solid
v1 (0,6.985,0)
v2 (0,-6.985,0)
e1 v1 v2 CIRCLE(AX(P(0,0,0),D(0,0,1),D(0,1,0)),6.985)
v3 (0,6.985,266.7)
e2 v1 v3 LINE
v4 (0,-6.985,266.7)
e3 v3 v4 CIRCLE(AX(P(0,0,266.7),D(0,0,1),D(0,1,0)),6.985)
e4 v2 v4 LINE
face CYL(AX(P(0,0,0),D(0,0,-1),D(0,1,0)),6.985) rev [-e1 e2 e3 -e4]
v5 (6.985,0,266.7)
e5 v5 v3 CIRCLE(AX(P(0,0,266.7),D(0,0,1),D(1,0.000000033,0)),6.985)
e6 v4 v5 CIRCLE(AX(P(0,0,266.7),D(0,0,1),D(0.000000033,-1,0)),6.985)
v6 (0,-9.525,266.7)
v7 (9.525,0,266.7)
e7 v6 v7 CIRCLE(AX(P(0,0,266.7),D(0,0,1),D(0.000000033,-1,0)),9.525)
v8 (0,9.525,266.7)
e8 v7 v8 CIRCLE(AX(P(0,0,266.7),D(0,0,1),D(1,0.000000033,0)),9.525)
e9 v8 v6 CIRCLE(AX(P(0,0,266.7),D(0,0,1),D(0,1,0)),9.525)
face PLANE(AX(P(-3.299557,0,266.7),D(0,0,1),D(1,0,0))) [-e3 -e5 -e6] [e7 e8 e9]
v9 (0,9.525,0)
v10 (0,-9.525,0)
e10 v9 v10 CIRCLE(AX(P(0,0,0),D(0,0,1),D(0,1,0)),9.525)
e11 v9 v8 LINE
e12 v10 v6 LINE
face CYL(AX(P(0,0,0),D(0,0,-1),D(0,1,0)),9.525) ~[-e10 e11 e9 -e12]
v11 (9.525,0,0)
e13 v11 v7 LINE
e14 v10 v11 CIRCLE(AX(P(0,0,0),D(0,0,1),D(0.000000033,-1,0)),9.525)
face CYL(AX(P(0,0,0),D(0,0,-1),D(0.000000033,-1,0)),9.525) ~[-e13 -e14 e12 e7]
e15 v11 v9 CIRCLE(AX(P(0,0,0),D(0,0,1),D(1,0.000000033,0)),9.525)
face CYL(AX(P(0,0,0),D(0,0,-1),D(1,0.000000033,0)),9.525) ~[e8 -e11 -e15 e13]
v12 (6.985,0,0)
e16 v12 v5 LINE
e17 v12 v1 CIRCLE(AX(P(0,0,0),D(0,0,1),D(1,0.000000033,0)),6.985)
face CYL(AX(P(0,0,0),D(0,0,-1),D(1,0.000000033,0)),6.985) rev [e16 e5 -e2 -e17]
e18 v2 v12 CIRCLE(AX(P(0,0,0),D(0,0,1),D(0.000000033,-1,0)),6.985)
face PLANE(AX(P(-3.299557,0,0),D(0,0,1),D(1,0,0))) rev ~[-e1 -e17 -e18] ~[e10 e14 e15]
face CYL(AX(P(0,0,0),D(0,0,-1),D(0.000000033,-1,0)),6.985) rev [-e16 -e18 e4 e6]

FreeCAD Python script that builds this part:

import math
import FreeCAD as App
import Part
import Sketcher
from FreeCAD import Vector
Q = App.Units.Quantity


def faces_at(feature, points):
    """Names of the faces that lie closest to the given points."""
    faces = feature.Shape.Faces
    near = lambda p: min(range(len(faces)), key=lambda i: faces[i].distToShape(Part.Vertex(*p))[0])
    return sorted({f"Face{near(p) + 1}" for p in points})

doc = App.newDocument("Part")
body = doc.addObject("PartDesign::Body", "Body")

# Sketch on XY plane
sketch1 = doc.addObject("Sketcher::SketchObject", "Sketch")
body.addObject(sketch1)
sketch1.AttachmentSupport = (doc.XY_Plane, [""])
sketch1.MapMode = "FlatFace"
sketch1.addGeometry([
    Part.ArcOfCircle(Part.Circle(Vector(0, 0, 0), Vector(0, 0, 1), 9.525), math.radians(90), math.radians(270)),
    Part.ArcOfCircle(Part.Circle(Vector(0, 0, 0), Vector(0, 0, 1), 9.525), math.radians(-89.999998), math.radians(-0.000002)),
    Part.ArcOfCircle(Part.Circle(Vector(0, 0, 0), Vector(0, 0, 1), 9.525), math.radians(0.000002), math.radians(89.999998)),
], False)
sketch1.addConstraint([
    Sketcher.Constraint("Tangent", 0, 2, 1, 1),
    Sketcher.Constraint("Tangent", 1, 2, 2, 1),
    Sketcher.Constraint("Tangent", 2, 2, 0, 1),
    Sketcher.Constraint("Coincident", 0, 3, -1, 1),
    Sketcher.Constraint("PointOnObject", 0, 2, -2),
    Sketcher.Constraint("PointOnObject", 1, 2, -1),
    Sketcher.Constraint("PointOnObject", 2, 2, -2),
    Sketcher.Constraint("Radius", 0, Q("0.375 in")),
])
pad1 = doc.addObject("PartDesign::Pad", "Pad")
body.addObject(pad1)
pad1.Profile = sketch1
pad1.Length = Q("10.5 in")
doc.recompute()

thickness = doc.addObject("PartDesign::Thickness", "Thickness")
body.addObject(thickness)
thickness.Base = (pad1, faces_at(pad1, [(0, 0, 266.7), (0, 0, 0)]))
thickness.Value = Q("0.1 in")
thickness.Reversed = True
thickness.Join = "Arc"

doc.recompute()
